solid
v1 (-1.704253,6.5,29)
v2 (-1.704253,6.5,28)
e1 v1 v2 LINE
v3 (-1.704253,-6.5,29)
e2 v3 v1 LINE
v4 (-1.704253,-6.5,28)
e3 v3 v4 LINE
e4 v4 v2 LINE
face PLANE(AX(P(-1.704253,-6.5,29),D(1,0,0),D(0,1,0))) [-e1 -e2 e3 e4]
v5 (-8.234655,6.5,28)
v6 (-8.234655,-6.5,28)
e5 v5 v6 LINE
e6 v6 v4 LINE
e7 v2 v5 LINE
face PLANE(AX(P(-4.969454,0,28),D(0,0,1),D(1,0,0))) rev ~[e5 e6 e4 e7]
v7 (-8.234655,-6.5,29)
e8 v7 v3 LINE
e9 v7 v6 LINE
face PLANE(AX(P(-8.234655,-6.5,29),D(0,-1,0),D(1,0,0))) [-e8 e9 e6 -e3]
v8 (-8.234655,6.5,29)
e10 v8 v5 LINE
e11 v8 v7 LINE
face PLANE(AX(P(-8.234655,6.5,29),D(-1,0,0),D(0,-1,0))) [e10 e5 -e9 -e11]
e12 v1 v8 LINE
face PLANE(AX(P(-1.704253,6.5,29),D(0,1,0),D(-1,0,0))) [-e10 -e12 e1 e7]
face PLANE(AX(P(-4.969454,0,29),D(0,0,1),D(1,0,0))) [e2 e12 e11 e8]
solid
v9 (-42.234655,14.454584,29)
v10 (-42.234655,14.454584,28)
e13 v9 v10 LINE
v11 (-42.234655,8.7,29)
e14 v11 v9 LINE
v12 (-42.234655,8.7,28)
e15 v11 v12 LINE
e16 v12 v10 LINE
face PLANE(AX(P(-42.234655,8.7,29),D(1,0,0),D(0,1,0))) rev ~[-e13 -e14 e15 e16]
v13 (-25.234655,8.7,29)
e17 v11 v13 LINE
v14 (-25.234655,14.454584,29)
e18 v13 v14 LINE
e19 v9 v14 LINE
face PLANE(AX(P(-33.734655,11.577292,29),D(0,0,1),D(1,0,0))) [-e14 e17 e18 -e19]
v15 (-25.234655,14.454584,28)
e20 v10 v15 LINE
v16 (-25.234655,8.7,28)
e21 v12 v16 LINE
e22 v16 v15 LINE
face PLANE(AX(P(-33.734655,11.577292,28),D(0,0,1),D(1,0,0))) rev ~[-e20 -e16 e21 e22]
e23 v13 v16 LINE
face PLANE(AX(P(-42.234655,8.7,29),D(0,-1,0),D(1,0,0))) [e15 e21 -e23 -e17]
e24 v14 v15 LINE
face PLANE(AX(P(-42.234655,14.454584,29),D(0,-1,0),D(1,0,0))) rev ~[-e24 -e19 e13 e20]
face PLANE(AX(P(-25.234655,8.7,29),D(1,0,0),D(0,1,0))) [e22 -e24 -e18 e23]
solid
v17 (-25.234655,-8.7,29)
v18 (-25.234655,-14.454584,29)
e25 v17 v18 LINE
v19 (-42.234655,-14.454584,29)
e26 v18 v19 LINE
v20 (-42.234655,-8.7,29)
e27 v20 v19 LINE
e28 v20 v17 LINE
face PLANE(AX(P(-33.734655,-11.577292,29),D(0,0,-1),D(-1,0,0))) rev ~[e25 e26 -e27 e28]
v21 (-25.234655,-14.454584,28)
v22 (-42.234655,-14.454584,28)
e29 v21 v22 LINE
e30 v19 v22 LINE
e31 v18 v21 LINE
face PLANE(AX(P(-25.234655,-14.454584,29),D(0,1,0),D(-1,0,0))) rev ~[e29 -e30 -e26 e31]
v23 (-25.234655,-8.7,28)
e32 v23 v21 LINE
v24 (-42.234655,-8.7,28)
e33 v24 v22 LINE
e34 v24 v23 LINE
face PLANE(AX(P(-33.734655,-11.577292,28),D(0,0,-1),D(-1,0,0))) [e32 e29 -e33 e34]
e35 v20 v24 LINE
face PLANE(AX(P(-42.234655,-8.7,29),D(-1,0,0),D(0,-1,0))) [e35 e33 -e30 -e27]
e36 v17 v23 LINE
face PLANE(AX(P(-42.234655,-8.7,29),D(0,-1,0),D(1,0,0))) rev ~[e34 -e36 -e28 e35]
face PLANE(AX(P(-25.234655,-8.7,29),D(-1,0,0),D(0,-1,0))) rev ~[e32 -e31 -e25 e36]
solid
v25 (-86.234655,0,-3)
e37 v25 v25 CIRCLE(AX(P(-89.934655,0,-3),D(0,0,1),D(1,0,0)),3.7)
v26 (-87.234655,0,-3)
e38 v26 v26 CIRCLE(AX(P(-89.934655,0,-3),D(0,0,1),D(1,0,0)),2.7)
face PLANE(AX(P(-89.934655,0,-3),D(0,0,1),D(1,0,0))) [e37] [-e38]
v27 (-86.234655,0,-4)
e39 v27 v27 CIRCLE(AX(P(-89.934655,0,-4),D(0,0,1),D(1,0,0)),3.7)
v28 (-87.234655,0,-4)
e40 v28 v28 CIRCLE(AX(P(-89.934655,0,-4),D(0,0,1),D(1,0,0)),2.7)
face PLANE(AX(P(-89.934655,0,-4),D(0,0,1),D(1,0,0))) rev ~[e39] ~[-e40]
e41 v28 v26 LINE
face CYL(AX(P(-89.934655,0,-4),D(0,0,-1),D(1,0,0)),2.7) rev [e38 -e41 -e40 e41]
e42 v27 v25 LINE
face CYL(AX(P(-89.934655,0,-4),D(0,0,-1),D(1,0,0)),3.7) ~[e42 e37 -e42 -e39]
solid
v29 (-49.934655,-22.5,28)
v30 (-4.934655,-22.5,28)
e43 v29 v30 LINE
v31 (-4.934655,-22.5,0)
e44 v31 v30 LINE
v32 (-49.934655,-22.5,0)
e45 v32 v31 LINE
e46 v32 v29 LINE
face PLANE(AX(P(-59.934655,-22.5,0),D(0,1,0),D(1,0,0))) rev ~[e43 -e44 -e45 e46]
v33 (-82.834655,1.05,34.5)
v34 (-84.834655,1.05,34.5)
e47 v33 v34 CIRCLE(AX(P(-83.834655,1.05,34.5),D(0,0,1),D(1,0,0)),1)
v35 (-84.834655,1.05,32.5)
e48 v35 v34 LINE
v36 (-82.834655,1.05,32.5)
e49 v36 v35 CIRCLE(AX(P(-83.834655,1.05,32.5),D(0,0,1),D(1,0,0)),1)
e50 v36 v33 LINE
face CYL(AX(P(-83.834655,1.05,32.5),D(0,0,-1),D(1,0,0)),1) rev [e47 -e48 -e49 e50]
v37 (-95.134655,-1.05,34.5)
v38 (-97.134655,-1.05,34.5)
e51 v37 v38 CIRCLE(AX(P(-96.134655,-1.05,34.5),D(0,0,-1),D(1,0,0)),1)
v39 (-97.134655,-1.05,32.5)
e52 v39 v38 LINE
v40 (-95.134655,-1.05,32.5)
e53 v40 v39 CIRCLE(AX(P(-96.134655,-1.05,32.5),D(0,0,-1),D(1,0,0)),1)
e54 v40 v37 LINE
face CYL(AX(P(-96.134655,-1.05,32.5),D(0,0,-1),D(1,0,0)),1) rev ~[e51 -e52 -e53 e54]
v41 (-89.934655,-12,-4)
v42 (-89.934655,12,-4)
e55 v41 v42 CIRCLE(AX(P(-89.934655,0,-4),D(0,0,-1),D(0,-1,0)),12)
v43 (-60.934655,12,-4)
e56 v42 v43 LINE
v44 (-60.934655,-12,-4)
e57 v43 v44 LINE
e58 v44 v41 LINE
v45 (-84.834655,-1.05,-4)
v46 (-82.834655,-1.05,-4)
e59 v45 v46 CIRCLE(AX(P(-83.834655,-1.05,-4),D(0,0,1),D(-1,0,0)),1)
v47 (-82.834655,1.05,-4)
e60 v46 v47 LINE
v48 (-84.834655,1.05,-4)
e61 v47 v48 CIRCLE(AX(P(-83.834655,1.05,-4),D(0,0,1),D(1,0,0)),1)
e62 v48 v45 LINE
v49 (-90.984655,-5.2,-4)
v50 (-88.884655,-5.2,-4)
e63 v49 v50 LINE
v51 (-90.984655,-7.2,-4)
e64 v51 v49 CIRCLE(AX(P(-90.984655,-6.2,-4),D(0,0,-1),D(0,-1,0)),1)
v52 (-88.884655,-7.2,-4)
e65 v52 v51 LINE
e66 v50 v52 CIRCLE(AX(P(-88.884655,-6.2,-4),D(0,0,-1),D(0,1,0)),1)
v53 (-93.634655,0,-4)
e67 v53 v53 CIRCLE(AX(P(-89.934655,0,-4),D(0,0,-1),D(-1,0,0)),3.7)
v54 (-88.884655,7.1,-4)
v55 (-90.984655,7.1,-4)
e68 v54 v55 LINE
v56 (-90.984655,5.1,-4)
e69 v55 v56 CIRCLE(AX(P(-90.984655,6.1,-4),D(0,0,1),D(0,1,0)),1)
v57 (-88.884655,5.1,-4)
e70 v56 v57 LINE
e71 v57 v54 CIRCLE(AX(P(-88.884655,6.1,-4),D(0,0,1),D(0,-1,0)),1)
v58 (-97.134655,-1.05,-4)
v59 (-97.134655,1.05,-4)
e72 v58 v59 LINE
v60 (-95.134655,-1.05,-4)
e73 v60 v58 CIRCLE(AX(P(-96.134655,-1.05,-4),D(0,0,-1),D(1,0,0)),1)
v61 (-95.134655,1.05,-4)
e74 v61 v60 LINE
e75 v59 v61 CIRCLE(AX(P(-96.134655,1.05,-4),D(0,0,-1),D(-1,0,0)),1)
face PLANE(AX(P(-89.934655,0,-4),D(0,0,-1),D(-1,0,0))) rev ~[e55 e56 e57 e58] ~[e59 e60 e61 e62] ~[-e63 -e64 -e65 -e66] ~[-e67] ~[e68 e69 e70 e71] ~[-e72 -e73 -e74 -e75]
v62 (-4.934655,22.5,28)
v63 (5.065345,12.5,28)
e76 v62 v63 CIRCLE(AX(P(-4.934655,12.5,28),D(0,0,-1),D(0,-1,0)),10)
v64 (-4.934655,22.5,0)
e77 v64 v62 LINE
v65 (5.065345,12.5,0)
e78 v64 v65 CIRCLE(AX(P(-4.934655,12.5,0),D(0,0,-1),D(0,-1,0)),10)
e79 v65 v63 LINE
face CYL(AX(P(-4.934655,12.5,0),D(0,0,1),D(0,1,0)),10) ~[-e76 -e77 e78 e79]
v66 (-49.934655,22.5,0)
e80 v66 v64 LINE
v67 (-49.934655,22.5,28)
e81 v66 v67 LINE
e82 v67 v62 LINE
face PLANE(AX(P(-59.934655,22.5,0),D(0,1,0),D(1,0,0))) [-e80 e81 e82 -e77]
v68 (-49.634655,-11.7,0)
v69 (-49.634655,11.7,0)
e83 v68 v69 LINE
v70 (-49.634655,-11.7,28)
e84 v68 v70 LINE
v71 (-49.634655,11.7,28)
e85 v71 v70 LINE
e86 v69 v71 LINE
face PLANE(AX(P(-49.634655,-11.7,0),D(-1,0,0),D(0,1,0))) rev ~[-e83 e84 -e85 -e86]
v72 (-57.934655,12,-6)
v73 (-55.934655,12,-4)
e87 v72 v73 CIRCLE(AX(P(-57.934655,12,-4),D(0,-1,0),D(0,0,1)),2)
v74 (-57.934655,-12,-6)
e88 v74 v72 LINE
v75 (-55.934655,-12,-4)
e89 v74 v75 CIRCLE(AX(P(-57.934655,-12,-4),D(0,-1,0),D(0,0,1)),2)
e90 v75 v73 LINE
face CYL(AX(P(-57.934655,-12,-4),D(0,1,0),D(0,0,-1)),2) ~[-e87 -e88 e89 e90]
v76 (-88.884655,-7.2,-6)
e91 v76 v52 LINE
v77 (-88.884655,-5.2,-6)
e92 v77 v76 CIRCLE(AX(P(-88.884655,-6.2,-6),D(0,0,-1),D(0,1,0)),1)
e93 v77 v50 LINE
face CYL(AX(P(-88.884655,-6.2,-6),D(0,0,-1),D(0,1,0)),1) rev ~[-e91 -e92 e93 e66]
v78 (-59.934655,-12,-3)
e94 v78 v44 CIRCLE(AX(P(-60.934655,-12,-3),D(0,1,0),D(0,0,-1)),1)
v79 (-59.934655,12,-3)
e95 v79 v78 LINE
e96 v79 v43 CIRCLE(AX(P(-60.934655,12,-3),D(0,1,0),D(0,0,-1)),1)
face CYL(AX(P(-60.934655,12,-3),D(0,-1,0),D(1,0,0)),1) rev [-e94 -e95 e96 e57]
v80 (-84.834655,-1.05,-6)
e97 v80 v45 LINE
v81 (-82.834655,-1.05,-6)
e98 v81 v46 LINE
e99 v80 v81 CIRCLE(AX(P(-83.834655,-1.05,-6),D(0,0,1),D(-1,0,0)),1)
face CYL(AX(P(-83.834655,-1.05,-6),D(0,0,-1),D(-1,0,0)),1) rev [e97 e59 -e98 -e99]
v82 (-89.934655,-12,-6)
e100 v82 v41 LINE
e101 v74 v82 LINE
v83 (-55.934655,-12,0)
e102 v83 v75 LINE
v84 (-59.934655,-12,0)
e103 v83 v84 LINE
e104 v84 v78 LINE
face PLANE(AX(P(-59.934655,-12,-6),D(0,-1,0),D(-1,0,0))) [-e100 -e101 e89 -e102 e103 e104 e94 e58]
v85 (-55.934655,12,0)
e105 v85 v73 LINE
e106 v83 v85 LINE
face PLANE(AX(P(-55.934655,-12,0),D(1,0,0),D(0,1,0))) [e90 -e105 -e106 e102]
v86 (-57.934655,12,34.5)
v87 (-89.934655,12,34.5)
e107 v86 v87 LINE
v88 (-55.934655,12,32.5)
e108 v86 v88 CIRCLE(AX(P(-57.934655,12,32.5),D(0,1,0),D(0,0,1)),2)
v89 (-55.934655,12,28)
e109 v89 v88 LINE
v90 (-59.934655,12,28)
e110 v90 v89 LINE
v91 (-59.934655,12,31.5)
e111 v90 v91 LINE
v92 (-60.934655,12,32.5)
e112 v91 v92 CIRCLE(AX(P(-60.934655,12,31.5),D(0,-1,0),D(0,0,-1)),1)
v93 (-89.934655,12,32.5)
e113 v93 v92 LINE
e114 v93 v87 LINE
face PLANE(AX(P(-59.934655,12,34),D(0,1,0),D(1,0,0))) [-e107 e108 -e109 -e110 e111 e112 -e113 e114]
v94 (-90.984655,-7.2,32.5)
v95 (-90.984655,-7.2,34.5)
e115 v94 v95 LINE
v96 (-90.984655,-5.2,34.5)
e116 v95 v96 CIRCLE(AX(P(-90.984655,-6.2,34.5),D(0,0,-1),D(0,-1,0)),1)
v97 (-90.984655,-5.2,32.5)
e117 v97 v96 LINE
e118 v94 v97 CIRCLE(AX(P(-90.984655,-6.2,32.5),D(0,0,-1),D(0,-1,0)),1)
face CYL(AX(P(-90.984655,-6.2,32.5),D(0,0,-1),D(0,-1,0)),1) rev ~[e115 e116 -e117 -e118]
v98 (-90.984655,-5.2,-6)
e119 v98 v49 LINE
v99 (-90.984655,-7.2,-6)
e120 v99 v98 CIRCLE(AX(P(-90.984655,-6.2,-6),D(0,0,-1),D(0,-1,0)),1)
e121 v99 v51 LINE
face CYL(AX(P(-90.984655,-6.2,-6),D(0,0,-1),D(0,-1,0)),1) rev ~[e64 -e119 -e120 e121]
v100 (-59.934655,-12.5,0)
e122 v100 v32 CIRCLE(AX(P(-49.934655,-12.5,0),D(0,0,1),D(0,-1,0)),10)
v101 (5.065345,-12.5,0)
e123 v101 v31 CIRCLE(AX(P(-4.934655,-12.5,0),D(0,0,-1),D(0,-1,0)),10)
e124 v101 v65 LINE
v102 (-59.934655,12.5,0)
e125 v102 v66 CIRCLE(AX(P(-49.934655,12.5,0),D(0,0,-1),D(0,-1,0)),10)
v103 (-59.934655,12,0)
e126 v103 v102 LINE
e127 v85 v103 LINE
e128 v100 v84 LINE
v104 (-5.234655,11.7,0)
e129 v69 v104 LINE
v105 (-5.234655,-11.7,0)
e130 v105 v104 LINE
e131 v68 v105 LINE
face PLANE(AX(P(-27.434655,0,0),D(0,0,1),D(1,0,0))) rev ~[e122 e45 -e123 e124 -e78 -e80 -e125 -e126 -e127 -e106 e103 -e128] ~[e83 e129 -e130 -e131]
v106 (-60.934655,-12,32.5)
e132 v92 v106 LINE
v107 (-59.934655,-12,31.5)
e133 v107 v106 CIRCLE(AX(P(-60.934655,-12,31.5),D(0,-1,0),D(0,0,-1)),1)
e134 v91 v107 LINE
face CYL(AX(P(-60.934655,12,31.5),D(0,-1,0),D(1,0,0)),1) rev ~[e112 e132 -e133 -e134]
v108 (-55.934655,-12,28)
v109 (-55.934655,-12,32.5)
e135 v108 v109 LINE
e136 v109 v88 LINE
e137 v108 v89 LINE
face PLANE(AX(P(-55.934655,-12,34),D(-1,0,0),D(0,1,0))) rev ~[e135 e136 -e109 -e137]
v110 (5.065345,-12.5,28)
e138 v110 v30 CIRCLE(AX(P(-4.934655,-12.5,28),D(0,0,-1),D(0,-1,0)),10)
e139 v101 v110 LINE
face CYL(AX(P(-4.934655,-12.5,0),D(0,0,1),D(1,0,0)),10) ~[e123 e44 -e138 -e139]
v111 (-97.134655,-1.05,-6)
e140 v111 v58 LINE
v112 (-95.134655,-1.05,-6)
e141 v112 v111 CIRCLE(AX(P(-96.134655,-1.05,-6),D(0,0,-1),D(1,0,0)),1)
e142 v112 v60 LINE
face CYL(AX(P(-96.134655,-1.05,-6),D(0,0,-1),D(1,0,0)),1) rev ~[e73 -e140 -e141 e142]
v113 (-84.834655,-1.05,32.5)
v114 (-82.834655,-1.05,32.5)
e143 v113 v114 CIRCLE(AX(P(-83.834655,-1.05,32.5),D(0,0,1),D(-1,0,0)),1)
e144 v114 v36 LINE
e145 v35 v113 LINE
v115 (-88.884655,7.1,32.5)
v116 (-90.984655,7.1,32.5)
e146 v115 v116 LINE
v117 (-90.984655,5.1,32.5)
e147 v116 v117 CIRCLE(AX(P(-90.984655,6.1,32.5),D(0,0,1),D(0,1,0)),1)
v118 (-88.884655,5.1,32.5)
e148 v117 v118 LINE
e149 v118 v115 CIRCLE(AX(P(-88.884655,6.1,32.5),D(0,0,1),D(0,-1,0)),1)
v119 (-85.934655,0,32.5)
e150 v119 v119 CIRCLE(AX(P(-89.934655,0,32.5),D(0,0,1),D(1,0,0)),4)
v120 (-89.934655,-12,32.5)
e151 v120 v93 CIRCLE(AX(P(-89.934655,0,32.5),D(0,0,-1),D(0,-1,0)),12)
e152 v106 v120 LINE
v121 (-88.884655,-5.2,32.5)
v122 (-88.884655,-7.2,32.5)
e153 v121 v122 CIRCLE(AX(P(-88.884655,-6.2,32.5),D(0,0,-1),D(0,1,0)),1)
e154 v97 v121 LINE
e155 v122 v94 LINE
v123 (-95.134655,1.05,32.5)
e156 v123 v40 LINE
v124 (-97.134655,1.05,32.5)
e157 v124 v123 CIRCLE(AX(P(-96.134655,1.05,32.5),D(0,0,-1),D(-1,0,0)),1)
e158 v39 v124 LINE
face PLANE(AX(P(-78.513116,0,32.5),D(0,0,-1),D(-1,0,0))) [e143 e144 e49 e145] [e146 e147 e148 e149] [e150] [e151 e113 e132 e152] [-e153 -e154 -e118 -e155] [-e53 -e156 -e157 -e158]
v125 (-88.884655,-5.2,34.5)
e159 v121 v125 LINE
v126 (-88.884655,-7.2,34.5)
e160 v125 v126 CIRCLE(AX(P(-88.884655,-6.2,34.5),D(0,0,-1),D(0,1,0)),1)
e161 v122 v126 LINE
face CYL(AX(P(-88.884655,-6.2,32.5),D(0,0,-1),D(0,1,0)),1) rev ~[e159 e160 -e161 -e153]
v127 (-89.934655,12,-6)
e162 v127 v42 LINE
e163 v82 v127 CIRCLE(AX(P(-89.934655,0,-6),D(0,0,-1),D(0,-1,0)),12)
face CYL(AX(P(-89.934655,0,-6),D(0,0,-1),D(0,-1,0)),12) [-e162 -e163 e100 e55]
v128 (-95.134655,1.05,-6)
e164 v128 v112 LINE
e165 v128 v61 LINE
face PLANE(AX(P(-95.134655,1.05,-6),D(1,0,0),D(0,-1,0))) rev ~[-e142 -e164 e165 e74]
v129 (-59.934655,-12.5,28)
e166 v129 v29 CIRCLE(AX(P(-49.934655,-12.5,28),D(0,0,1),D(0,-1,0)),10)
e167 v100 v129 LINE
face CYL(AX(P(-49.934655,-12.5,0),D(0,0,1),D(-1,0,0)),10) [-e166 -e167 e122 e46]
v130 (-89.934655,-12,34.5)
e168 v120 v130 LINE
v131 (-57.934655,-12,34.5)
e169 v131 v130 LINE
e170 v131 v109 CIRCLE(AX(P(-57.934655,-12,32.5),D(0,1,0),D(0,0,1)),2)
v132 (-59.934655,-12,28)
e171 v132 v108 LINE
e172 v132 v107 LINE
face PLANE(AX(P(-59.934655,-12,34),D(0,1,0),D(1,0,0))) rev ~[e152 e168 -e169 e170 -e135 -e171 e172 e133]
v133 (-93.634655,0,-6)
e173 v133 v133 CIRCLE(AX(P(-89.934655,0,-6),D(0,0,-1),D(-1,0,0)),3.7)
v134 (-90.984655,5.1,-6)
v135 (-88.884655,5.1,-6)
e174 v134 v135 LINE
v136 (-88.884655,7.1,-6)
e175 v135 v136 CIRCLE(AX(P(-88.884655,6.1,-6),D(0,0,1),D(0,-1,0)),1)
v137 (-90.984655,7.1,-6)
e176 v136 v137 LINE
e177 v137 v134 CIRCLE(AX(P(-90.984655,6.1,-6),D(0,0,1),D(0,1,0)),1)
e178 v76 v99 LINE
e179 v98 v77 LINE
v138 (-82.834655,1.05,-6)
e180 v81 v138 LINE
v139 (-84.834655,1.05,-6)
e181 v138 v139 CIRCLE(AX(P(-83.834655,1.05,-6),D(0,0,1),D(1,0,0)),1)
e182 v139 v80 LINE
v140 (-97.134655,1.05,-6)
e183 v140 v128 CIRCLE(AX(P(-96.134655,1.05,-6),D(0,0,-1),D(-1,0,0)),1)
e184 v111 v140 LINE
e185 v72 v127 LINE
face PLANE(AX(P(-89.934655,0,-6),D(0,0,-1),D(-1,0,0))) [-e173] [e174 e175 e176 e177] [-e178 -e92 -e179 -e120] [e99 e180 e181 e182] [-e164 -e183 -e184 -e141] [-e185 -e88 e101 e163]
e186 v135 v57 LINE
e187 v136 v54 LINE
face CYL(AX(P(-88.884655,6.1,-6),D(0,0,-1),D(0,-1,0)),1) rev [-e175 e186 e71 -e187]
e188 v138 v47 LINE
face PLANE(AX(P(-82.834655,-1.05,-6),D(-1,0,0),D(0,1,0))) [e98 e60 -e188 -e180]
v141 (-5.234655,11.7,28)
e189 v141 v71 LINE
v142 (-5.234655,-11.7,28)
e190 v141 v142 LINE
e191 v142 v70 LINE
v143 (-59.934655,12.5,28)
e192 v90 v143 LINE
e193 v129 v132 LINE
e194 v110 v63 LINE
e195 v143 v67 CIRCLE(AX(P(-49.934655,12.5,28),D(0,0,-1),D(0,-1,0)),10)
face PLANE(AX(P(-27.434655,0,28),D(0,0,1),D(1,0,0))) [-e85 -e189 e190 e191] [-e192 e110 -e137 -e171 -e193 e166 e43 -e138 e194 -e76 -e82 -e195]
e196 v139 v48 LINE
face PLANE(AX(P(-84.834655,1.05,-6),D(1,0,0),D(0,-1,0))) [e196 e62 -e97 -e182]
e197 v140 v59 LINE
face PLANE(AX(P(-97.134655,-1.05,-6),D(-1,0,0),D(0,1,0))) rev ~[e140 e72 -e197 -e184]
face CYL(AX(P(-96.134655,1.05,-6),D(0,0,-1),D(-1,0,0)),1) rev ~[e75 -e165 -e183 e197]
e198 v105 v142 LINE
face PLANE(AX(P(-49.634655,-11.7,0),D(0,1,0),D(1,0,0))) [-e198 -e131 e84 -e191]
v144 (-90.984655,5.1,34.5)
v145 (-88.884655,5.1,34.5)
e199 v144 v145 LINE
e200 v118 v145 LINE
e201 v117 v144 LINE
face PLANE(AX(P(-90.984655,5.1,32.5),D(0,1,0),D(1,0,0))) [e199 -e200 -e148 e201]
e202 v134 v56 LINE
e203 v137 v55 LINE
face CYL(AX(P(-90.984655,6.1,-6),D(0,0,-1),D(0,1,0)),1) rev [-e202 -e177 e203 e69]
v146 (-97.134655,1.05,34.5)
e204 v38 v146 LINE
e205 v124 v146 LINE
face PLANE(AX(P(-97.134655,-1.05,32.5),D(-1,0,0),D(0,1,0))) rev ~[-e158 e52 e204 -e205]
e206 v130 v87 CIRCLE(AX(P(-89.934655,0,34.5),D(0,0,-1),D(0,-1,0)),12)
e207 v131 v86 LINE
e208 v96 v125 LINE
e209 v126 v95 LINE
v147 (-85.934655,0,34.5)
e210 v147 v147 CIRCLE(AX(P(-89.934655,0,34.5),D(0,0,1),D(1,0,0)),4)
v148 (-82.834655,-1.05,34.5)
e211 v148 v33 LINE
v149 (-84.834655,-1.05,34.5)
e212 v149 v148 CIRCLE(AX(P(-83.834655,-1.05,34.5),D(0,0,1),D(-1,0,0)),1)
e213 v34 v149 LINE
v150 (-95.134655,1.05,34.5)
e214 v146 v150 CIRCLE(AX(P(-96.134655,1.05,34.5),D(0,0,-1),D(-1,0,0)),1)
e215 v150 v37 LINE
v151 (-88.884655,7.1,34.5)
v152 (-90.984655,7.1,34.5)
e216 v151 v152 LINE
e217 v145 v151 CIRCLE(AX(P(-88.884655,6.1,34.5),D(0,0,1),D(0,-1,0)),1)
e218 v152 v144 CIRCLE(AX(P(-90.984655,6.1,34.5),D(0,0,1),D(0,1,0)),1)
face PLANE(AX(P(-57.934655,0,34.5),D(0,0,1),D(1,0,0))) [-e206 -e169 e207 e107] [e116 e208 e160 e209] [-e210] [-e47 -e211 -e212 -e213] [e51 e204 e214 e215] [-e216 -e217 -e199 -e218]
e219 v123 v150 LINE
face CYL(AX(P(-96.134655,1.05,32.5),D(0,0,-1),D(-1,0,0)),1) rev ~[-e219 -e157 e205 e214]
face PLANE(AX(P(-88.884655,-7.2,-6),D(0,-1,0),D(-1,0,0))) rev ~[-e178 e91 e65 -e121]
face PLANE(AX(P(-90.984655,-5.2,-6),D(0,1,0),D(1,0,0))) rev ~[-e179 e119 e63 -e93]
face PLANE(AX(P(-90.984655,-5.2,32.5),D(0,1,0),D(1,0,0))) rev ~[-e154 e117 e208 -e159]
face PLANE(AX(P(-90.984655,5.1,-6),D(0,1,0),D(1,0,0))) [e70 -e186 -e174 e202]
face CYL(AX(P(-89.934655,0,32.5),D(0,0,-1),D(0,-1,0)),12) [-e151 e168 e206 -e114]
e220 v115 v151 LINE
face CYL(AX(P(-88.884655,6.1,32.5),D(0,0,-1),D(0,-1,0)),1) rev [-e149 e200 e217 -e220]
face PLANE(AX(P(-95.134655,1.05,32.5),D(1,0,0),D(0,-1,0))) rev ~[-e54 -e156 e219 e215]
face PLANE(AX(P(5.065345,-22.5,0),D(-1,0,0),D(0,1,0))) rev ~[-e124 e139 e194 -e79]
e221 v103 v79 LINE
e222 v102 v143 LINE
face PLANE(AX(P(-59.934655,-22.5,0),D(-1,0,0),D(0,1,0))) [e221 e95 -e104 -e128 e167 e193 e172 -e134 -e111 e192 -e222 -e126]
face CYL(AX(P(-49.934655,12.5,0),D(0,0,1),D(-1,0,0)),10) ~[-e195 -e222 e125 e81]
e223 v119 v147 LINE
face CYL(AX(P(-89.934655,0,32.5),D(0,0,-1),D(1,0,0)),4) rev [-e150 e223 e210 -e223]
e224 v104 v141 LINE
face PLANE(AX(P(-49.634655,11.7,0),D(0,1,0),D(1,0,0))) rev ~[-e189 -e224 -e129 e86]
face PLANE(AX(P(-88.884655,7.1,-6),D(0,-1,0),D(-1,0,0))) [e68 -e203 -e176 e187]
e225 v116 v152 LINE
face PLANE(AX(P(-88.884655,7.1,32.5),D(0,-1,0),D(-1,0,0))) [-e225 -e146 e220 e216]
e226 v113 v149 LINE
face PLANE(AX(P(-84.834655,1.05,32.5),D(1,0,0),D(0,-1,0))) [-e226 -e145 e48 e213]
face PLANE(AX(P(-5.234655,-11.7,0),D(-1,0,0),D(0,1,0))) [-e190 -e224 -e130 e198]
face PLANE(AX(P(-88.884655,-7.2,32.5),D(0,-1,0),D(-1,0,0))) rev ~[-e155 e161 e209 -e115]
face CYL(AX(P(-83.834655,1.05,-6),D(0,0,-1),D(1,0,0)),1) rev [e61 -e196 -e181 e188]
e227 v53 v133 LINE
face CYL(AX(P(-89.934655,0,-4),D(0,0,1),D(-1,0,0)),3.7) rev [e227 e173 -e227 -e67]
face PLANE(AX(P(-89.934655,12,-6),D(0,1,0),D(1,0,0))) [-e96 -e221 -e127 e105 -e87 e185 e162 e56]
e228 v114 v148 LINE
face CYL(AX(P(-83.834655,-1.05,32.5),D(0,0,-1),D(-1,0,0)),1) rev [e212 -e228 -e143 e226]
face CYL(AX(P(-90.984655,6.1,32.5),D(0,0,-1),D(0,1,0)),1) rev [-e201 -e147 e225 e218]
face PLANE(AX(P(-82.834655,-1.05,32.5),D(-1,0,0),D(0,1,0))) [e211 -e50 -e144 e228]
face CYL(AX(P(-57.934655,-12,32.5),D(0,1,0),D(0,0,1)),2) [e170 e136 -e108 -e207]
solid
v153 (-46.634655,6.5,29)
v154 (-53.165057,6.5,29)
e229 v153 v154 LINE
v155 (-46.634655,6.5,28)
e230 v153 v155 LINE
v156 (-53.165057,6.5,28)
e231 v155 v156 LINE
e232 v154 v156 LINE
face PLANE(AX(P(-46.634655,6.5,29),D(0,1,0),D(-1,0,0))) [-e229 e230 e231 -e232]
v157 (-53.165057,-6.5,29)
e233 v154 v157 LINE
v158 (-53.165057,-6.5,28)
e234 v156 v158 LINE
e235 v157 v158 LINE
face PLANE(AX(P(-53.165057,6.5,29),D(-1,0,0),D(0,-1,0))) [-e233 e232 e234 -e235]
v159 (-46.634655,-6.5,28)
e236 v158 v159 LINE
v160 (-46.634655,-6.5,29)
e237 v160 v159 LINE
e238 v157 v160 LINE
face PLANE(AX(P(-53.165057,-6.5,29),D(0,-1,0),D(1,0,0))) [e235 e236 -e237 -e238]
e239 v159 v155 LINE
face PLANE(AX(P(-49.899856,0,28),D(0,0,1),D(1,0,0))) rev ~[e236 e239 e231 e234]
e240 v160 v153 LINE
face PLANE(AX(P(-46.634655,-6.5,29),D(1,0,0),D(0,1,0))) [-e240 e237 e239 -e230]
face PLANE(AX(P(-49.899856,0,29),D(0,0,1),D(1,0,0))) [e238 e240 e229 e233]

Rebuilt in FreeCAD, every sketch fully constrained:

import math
import FreeCAD as App
import Part
import Sketcher
from FreeCAD import Vector


def edges_at(feature, points):
    """Names of the edges that pass closest to the given points."""
    edges = feature.Shape.Edges
    near = lambda p: min(range(len(edges)), key=lambda i: edges[i].distToShape(Part.Vertex(*p))[0])
    return sorted({f"Edge{near(p) + 1}" for p in points})

doc = App.newDocument("Part")
body = doc.addObject("PartDesign::Body", "Body")

sketch1 = doc.addObject("Sketcher::SketchObject", "Sketch")
body.addObject(sketch1)
sketch1.AttachmentSupport = (doc.XY_Plane, [""])
sketch1.MapMode = "FlatFace"
sketch1.addGeometry([
    Part.LineSegment(Vector(-60, 22, 0), Vector(-60, -22, 0)),
    Part.LineSegment(Vector(-60, -22, 0), Vector(5, -22, 0)),
    Part.LineSegment(Vector(5, -22, 0), Vector(5, 22, 0)),
    Part.LineSegment(Vector(5, 22, 0), Vector(-60, 22, 0)),
], False)
sketch1.addConstraint([
    Sketcher.Constraint("Coincident", 0, 2, 1, 1),
    Sketcher.Constraint("Coincident", 1, 2, 2, 1),
    Sketcher.Constraint("Coincident", 2, 2, 3, 1),
    Sketcher.Constraint("Coincident", 3, 2, 0, 1),
    Sketcher.Constraint("Vertical", 0),
    Sketcher.Constraint("Horizontal", 1),
    Sketcher.Constraint("Vertical", 2),
    Sketcher.Constraint("Horizontal", 3),
    Sketcher.Constraint("DistanceX", 1, 1, 1, 2, 65.0),
    Sketcher.Constraint("DistanceY", 0, 2, 0, 1, 45.0),
    Sketcher.Constraint("DistanceY", 0, 2, -1, 1, 22.5),
    Sketcher.Constraint("DistanceX", 0, 2, -1, 1, 59.934655),
])
pad1 = doc.addObject("PartDesign::Pad", "Pad")
body.addObject(pad1)
pad1.Profile = sketch1
pad1.Length = 28

sketch2 = doc.addObject("Sketcher::SketchObject", "Sketch001")
body.addObject(sketch2)
sketch2.AttachmentSupport = (doc.XY_Plane, [""])
sketch2.MapMode = "FlatFace"
sketch2.addGeometry([
    Part.LineSegment(Vector(-50, 12, 0), Vector(-50, -12, 0)),
    Part.LineSegment(Vector(-50, -12, 0), Vector(-5, -12, 0)),
    Part.LineSegment(Vector(-5, -12, 0), Vector(-5, 12, 0)),
    Part.LineSegment(Vector(-5, 12, 0), Vector(-50, 12, 0)),
], False)
sketch2.addConstraint([
    Sketcher.Constraint("Coincident", 0, 2, 1, 1),
    Sketcher.Constraint("Coincident", 1, 2, 2, 1),
    Sketcher.Constraint("Coincident", 2, 2, 3, 1),
    Sketcher.Constraint("Coincident", 3, 2, 0, 1),
    Sketcher.Constraint("Vertical", 0),
    Sketcher.Constraint("Horizontal", 1),
    Sketcher.Constraint("Vertical", 2),
    Sketcher.Constraint("Horizontal", 3),
    Sketcher.Constraint("DistanceX", 1, 1, 1, 2, 44.4),
    Sketcher.Constraint("DistanceY", 0, 2, 0, 1, 23.4),
    Sketcher.Constraint("DistanceY", 0, 2, -1, 1, 11.7),
    Sketcher.Constraint("DistanceX", 0, 2, -1, 1, 49.634655),
])
pocket1 = doc.addObject("PartDesign::Pocket", "Pocket")
body.addObject(pocket1)
pocket1.Profile = sketch2
pocket1.Length = 39
pocket1.Reversed = True

sketch3 = doc.addObject("Sketcher::SketchObject", "Sketch002")
body.addObject(sketch3)
sketch3.AttachmentSupport = (doc.XY_Plane, [""])
sketch3.MapMode = "FlatFace"
sketch3.AttachmentOffset = App.Placement(Vector(0, 0, 28), App.Rotation())
sketch3.addGeometry([
    Part.LineSegment(Vector(-59.9, 12, 0), Vector(-59.9, -12, 0)),
    Part.LineSegment(Vector(-59.9, -12, 0), Vector(-55.9, -12, 0)),
    Part.LineSegment(Vector(-55.9, -12, 0), Vector(-55.9, 12, 0)),
    Part.LineSegment(Vector(-55.9, 12, 0), Vector(-59.9, 12, 0)),
], False)
sketch3.addConstraint([
    Sketcher.Constraint("Coincident", 0, 2, 1, 1),
    Sketcher.Constraint("Coincident", 1, 2, 2, 1),
    Sketcher.Constraint("Coincident", 2, 2, 3, 1),
    Sketcher.Constraint("Coincident", 3, 2, 0, 1),
    Sketcher.Constraint("Vertical", 0),
    Sketcher.Constraint("Horizontal", 1),
    Sketcher.Constraint("Vertical", 2),
    Sketcher.Constraint("Horizontal", 3),
    Sketcher.Constraint("DistanceX", 1, 1, 1, 2, 4.0),
    Sketcher.Constraint("DistanceY", 0, 2, 0, 1, 24.0),
    Sketcher.Constraint("DistanceY", 0, 2, -1, 1, 12.0),
    Sketcher.Constraint("DistanceX", 0, 2, -1, 1, 59.934655),
])
pad2 = doc.addObject("PartDesign::Pad", "Pad001")
body.addObject(pad2)
pad2.Profile = sketch3
pad2.Length = 6

sketch4 = doc.addObject("Sketcher::SketchObject", "Sketch003")
body.addObject(sketch4)
sketch4.AttachmentSupport = (doc.XY_Plane, [""])
sketch4.MapMode = "FlatFace"
sketch4.AttachmentOffset = App.Placement(Vector(0, 0, 32.5), App.Rotation())
sketch4.addGeometry([
    Part.LineSegment(Vector(-59.9, -12, 0), Vector(-59.9, 12, 0)),
    Part.LineSegment(Vector(-59.9, 12, 0), Vector(-89.9, 12, 0)),
    Part.ArcOfCircle(Part.Circle(Vector(-89.9, 0, 0), Vector(0, 0, 1), 12), math.radians(90), math.radians(270)),
    Part.LineSegment(Vector(-89.9, -12, 0), Vector(-59.9, -12, 0)),
    Part.LineSegment(Vector(-91, -5.2, 0), Vector(-88.9, -5.2, 0)),
    Part.ArcOfCircle(Part.Circle(Vector(-88.9, -6.2, 0), Vector(0, 0, 1), 1), math.radians(-90), math.radians(90)),
    Part.LineSegment(Vector(-88.9, -7.2, 0), Vector(-91, -7.2, 0)),
    Part.ArcOfCircle(Part.Circle(Vector(-91, -6.2, 0), Vector(0, 0, 1), 1), math.radians(90), math.radians(270)),
    Part.ArcOfCircle(Part.Circle(Vector(-83.8, 1.1, 0), Vector(0, 0, 1), 1), math.radians(0), math.radians(180)),
    Part.LineSegment(Vector(-82.8, 1.1, 0), Vector(-82.8, -1.1, 0)),
    Part.ArcOfCircle(Part.Circle(Vector(-83.8, -1.1, 0), Vector(0, 0, 1), 1), math.radians(180), math.radians(360)),
    Part.LineSegment(Vector(-84.8, -1.1, 0), Vector(-84.8, 1.1, 0)),
    Part.Circle(Vector(-89.9, 0, 0), Vector(0, 0, 1), 4),
    Part.ArcOfCircle(Part.Circle(Vector(-91, 6.1, 0), Vector(0, 0, 1), 1), math.radians(90), math.radians(270)),
    Part.LineSegment(Vector(-91, 7.1, 0), Vector(-88.9, 7.1, 0)),
    Part.ArcOfCircle(Part.Circle(Vector(-88.9, 6.1, 0), Vector(0, 0, 1), 1), math.radians(-90), math.radians(90)),
    Part.LineSegment(Vector(-88.9, 5.1, 0), Vector(-91, 5.1, 0)),
    Part.LineSegment(Vector(-95.1, 1.1, 0), Vector(-95.1, -1.1, 0)),
    Part.ArcOfCircle(Part.Circle(Vector(-96.1, -1.1, 0), Vector(0, 0, 1), 1), math.radians(180), math.radians(360)),
    Part.LineSegment(Vector(-97.1, -1.1, 0), Vector(-97.1, 1.1, 0)),
    Part.ArcOfCircle(Part.Circle(Vector(-96.1, 1.1, 0), Vector(0, 0, 1), 1), math.radians(0), math.radians(180)),
], False)
sketch4.addConstraint([
    Sketcher.Constraint("Coincident", 0, 2, 1, 1),
    Sketcher.Constraint("Tangent", 1, 2, 2, 1),
    Sketcher.Constraint("Tangent", 2, 2, 3, 1),
    Sketcher.Constraint("Coincident", 3, 2, 0, 1),
    Sketcher.Constraint("Tangent", 4, 2, 5, 2),
    Sketcher.Constraint("Tangent", 5, 1, 6, 1),
    Sketcher.Constraint("Tangent", 6, 2, 7, 2),
    Sketcher.Constraint("Tangent", 7, 1, 4, 1),
    Sketcher.Constraint("Tangent", 8, 1, 9, 1),
    Sketcher.Constraint("Tangent", 9, 2, 10, 2),
    Sketcher.Constraint("Tangent", 10, 1, 11, 1),
    Sketcher.Constraint("Tangent", 11, 2, 8, 2),
    Sketcher.Constraint("Tangent", 13, 1, 14, 1),
    Sketcher.Constraint("Tangent", 14, 2, 15, 2),
    Sketcher.Constraint("Tangent", 15, 1, 16, 1),
    Sketcher.Constraint("Tangent", 16, 2, 13, 2),
    Sketcher.Constraint("Tangent", 17, 2, 18, 2),
    Sketcher.Constraint("Tangent", 18, 1, 19, 1),
    Sketcher.Constraint("Tangent", 19, 2, 20, 2),
    Sketcher.Constraint("Tangent", 20, 1, 17, 1),
    Sketcher.Constraint("Vertical", 0),
    Sketcher.Constraint("Horizontal", 1),
    Sketcher.Constraint("Horizontal", 3),
    Sketcher.Constraint("Horizontal", 4),
    Sketcher.Constraint("Horizontal", 6),
    Sketcher.Constraint("Vertical", 9),
    Sketcher.Constraint("Vertical", 11),
    Sketcher.Constraint("Horizontal", 14),
    Sketcher.Constraint("Horizontal", 16),
    Sketcher.Constraint("Vertical", 17),
    Sketcher.Constraint("Vertical", 19),
    Sketcher.Constraint("Coincident", 12, 3, 2, 3),
    Sketcher.Constraint("Equal", 7, 8),
    Sketcher.Constraint("Equal", 10, 13),
    Sketcher.Constraint("Equal", 15, 18),
    Sketcher.Constraint("PointOnObject", 2, 3, -1),
    Sketcher.Constraint("Horizontal", 10, 3, 18, 3),
    Sketcher.Constraint("Horizontal", 8, 3, 20, 3),
    Sketcher.Constraint("Vertical", 7, 3, 13, 3),
    Sketcher.Constraint("Vertical", 5, 3, 15, 3),
    Sketcher.Constraint("Equal", 16, 9),
    Sketcher.Constraint("Diameter", 12, 8.0),
    Sketcher.Constraint("Radius", 2, 12.0),
    Sketcher.Constraint("Radius", 5, 1.0),
    Sketcher.Constraint("DistanceX", 1, 2, 1, 1, 30.0),
    Sketcher.Constraint("DistanceX", 4, 1, 4, 2, 2.1),
    Sketcher.Constraint("DistanceY", 5, 3, -1, 1, 6.2),
    Sketcher.Constraint("DistanceY", -1, 1, 13, 3, 6.1),
    Sketcher.Constraint("DistanceX", 2, 3, 8, 3, 6.1),
    Sketcher.Constraint("DistanceX", 18, 3, 2, 3, 6.2),
    Sketcher.Constraint("DistanceY", -1, 1, 8, 3, 1.05),
    Sketcher.Constraint("DistanceX", 2, 3, 5, 3, 1.05),
    Sketcher.Constraint("DistanceX", 2, 3, -1, 1, 89.934655),
])
pad3 = doc.addObject("PartDesign::Pad", "Pad002")
body.addObject(pad3)
pad3.Profile = sketch4
pad3.Length = 2

sketch5 = doc.addObject("Sketcher::SketchObject", "Sketch004")
body.addObject(sketch5)
sketch5.AttachmentSupport = (doc.XY_Plane, [""])
sketch5.MapMode = "FlatFace"
sketch5.addGeometry([
    Part.LineSegment(Vector(-55.9, 12, 0), Vector(-55.9, -12, 0)),
    Part.LineSegment(Vector(-55.9, -12, 0), Vector(-59.9, -12, 0)),
    Part.LineSegment(Vector(-59.9, -12, 0), Vector(-59.9, 12, 0)),
    Part.LineSegment(Vector(-59.9, 12, 0), Vector(-55.9, 12, 0)),
], False)
sketch5.addConstraint([
    Sketcher.Constraint("Coincident", 0, 2, 1, 1),
    Sketcher.Constraint("Coincident", 1, 2, 2, 1),
    Sketcher.Constraint("Coincident", 2, 2, 3, 1),
    Sketcher.Constraint("Coincident", 3, 2, 0, 1),
    Sketcher.Constraint("Vertical", 0),
    Sketcher.Constraint("Horizontal", 1),
    Sketcher.Constraint("Vertical", 2),
    Sketcher.Constraint("Horizontal", 3),
    Sketcher.Constraint("DistanceX", 1, 2, 1, 1, 4.0),
    Sketcher.Constraint("DistanceY", 0, 2, 0, 1, 24.0),
    Sketcher.Constraint("DistanceY", 0, 2, -1, 1, 12.0),
    Sketcher.Constraint("DistanceX", 0, 2, -1, 1, 55.934655),
])
pad4 = doc.addObject("PartDesign::Pad", "Pad003")
body.addObject(pad4)
pad4.Profile = sketch5
pad4.Length = 6
pad4.Reversed = True
doc.recompute()

fillet = doc.addObject("PartDesign::Fillet", "Fillet")
body.addObject(fillet)
fillet.Base = (pad4, edges_at(pad4, [(-59.935, -22.5, 14)]))
fillet.Radius = 10
doc.recompute()

fillet2 = doc.addObject("PartDesign::Fillet", "Fillet001")
body.addObject(fillet2)
fillet2.Base = (fillet, edges_at(fillet, [(-59.935, 22.5, 14)]))
fillet2.Radius = 10
doc.recompute()

fillet3 = doc.addObject("PartDesign::Fillet", "Fillet002")
body.addObject(fillet3)
fillet3.Base = (fillet2, edges_at(fillet2, [(5.065, 22.5, 14)]))
fillet3.Radius = 10
doc.recompute()

fillet4 = doc.addObject("PartDesign::Fillet", "Fillet003")
body.addObject(fillet4)
fillet4.Base = (fillet3, edges_at(fillet3, [(5.065, -22.5, 14)]))
fillet4.Radius = 10
doc.recompute()

linearpattern = doc.addObject("PartDesign::LinearPattern", "LinearPattern")
body.addObject(linearpattern)
linearpattern.Originals = [pad3]
linearpattern.Direction = (doc.Z_Axis, [""])
linearpattern.Mode = "offset"
linearpattern.Offset = 38.5
linearpattern.Occurrences = 2
linearpattern.Reversed = True
body.Tip = linearpattern
doc.recompute()

fillet5 = doc.addObject("PartDesign::Fillet", "Fillet004")
body.addObject(fillet5)
fillet5.Base = (linearpattern, edges_at(linearpattern, [(-55.935, 0, -6)]))
fillet5.Radius = 2

sketch6 = doc.addObject("Sketcher::SketchObject", "Sketch005")
body.addObject(sketch6)
sketch6.AttachmentSupport = (doc.XY_Plane, [""])
sketch6.MapMode = "FlatFace"
sketch6.AttachmentOffset = App.Placement(Vector(0, 0, -4), App.Rotation())
sketch6.addGeometry([
    Part.Circle(Vector(-89.9, 0, 0), Vector(0, 0, 1), 4),
    Part.Circle(Vector(-89.9, 0, 0), Vector(0, 0, 1), 3.7),
], False)
sketch6.addConstraint([
    Sketcher.Constraint("Coincident", 1, 3, 0, 3),
    Sketcher.Constraint("PointOnObject", 0, 3, -1),
    Sketcher.Constraint("Diameter", 0, 8.0),
    Sketcher.Constraint("Diameter", 1, 7.4),
    Sketcher.Constraint("DistanceX", 0, 3, -1, 1, 89.934655),
])
pad5 = doc.addObject("PartDesign::Pad", "Pad004")
body.addObject(pad5)
pad5.Profile = sketch6
pad5.Length = 2
pad5.Reversed = True

sketch7 = doc.addObject("Sketcher::SketchObject", "Sketch006")
body.addObject(sketch7)
sketch7.AttachmentSupport = (doc.XY_Plane, [""])
sketch7.MapMode = "FlatFace"
sketch7.AttachmentOffset = App.Placement(Vector(0, 0, 34), App.Rotation())
sketch7.addGeometry([
    Part.LineSegment(Vector(-59.9, 12, 0), Vector(-59.9, -12, 0)),
    Part.LineSegment(Vector(-59.9, -12, 0), Vector(-55.9, -12, 0)),
    Part.LineSegment(Vector(-55.9, -12, 0), Vector(-55.9, 12, 0)),
    Part.LineSegment(Vector(-55.9, 12, 0), Vector(-59.9, 12, 0)),
], False)
sketch7.addConstraint([
    Sketcher.Constraint("Coincident", 0, 2, 1, 1),
    Sketcher.Constraint("Coincident", 1, 2, 2, 1),
    Sketcher.Constraint("Coincident", 2, 2, 3, 1),
    Sketcher.Constraint("Coincident", 3, 2, 0, 1),
    Sketcher.Constraint("Vertical", 0),
    Sketcher.Constraint("Horizontal", 1),
    Sketcher.Constraint("Vertical", 2),
    Sketcher.Constraint("Horizontal", 3),
    Sketcher.Constraint("DistanceX", 1, 1, 1, 2, 4.0),
    Sketcher.Constraint("DistanceY", 0, 2, 0, 1, 24.0),
    Sketcher.Constraint("DistanceY", 0, 2, -1, 1, 12.0),
    Sketcher.Constraint("DistanceX", 0, 2, -1, 1, 59.934655),
])
pad6 = doc.addObject("PartDesign::Pad", "Pad005")
body.addObject(pad6)
pad6.Profile = sketch7
pad6.Length = 0.5
doc.recompute()

fillet6 = doc.addObject("PartDesign::Fillet", "Fillet005")
body.addObject(fillet6)
fillet6.Base = (pad6, edges_at(pad6, [(-55.935, 0, 34.5)]))
fillet6.Radius = 2
doc.recompute()

fillet7 = doc.addObject("PartDesign::Fillet", "Fillet006")
body.addObject(fillet7)
fillet7.Base = (fillet6, edges_at(fillet6, [(-59.935, 0, 32.5)]))
fillet7.Radius = 1
doc.recompute()

fillet8 = doc.addObject("PartDesign::Fillet", "Fillet007")
body.addObject(fillet8)
fillet8.Base = (fillet7, edges_at(fillet7, [(-59.935, 0, -4)]))
fillet8.Radius = 1
body2 = doc.addObject("PartDesign::Body", "Body001")

sketch8 = doc.addObject("Sketcher::SketchObject", "Sketch007")
body2.addObject(sketch8)
sketch8.AttachmentSupport = (doc.getObject("XY_Plane001"), [""])
sketch8.MapMode = "FlatFace"
sketch8.AttachmentOffset = App.Placement(Vector(0, 0, -4), App.Rotation())
sketch8.addGeometry([
    Part.Circle(Vector(-89.9, 0, 0), Vector(0, 0, 1), 3.7),
    Part.Circle(Vector(-89.9, 0, 0), Vector(0, 0, 1), 2.7),
], False)
sketch8.addConstraint([
    Sketcher.Constraint("Coincident", 1, 3, 0, 3),
    Sketcher.Constraint("PointOnObject", 0, 3, -1),
    Sketcher.Constraint("Diameter", 0, 7.4),
    Sketcher.Constraint("Diameter", 1, 5.4),
    Sketcher.Constraint("DistanceX", 0, 3, -1, 1, 89.934655),
])
pad7 = doc.addObject("PartDesign::Pad", "Pad006")
body2.addObject(pad7)
pad7.Profile = sketch8
pad7.Length = 1
body3 = doc.addObject("PartDesign::Body", "Body002")

sketch9 = doc.addObject("Sketcher::SketchObject", "Sketch008")
body3.addObject(sketch9)
sketch9.AttachmentSupport = (doc.getObject("XY_Plane002"), [""])
sketch9.MapMode = "FlatFace"
sketch9.AttachmentOffset = App.Placement(Vector(0, 0, 29), App.Rotation())
sketch9.addGeometry([
    Part.LineSegment(Vector(-53, 6, 0), Vector(-53, -6, 0)),
    Part.LineSegment(Vector(-53, -6, 0), Vector(-47, -6, 0)),
    Part.LineSegment(Vector(-47, -6, 0), Vector(-47, 6, 0)),
    Part.LineSegment(Vector(-47, 6, 0), Vector(-53, 6, 0)),
], False)
sketch9.addConstraint([
    Sketcher.Constraint("Coincident", 0, 2, 1, 1),
    Sketcher.Constraint("Coincident", 1, 2, 2, 1),
    Sketcher.Constraint("Coincident", 2, 2, 3, 1),
    Sketcher.Constraint("Coincident", 3, 2, 0, 1),
    Sketcher.Constraint("Vertical", 0),
    Sketcher.Constraint("Horizontal", 1),
    Sketcher.Constraint("Vertical", 2),
    Sketcher.Constraint("Horizontal", 3),
    Sketcher.Constraint("DistanceY", 0, 2, 0, 1, 13.0),
    Sketcher.Constraint("DistanceY", 0, 2, -1, 1, 6.5),
    Sketcher.Constraint("DistanceX", 1, 1, 1, 2, 6.530402),
    Sketcher.Constraint("DistanceX", 0, 2, -1, 1, 53.165057),
])
pad8 = doc.addObject("PartDesign::Pad", "Pad007")
body3.addObject(pad8)
pad8.Profile = sketch9
pad8.Length = 1
pad8.Reversed = True
body4 = doc.addObject("PartDesign::Body", "Body003")

sketch10 = doc.addObject("Sketcher::SketchObject", "Sketch009")
body4.addObject(sketch10)
sketch10.AttachmentSupport = (doc.getObject("XY_Plane003"), [""])
sketch10.MapMode = "FlatFace"
sketch10.AttachmentOffset = App.Placement(Vector(0, 0, 29), App.Rotation())
sketch10.addGeometry([
    Part.LineSegment(Vector(-42, -9, 0), Vector(-42, -14, 0)),
    Part.LineSegment(Vector(-42, -14, 0), Vector(-25, -14, 0)),
    Part.LineSegment(Vector(-25, -14, 0), Vector(-25, -9, 0)),
    Part.LineSegment(Vector(-25, -9, 0), Vector(-42, -9, 0)),
], False)
sketch10.addConstraint([
    Sketcher.Constraint("Coincident", 0, 2, 1, 1),
    Sketcher.Constraint("Coincident", 1, 2, 2, 1),
    Sketcher.Constraint("Coincident", 2, 2, 3, 1),
    Sketcher.Constraint("Coincident", 3, 2, 0, 1),
    Sketcher.Constraint("Vertical", 0),
    Sketcher.Constraint("Horizontal", 1),
    Sketcher.Constraint("Vertical", 2),
    Sketcher.Constraint("Horizontal", 3),
    Sketcher.Constraint("DistanceX", 1, 1, 1, 2, 17.0),
    Sketcher.Constraint("DistanceY", 2, 2, -1, 1, 8.7),
    Sketcher.Constraint("DistanceY", 0, 2, 0, 1, 5.754584),
    Sketcher.Constraint("DistanceX", 0, 2, -1, 1, 42.234655),
])
pad9 = doc.addObject("PartDesign::Pad", "Pad008")
body4.addObject(pad9)
pad9.Profile = sketch10
pad9.Length = 1
pad9.Reversed = True
body5 = doc.addObject("PartDesign::Body", "Body004")

sketch11 = doc.addObject("Sketcher::SketchObject", "Sketch010")
body5.addObject(sketch11)
sketch11.AttachmentSupport = (doc.getObject("XY_Plane004"), [""])
sketch11.MapMode = "FlatFace"
sketch11.AttachmentOffset = App.Placement(Vector(0, 0, 29), App.Rotation())
sketch11.addGeometry([
    Part.LineSegment(Vector(-8, 6, 0), Vector(-8, -6, 0)),
    Part.LineSegment(Vector(-8, -6, 0), Vector(-2, -6, 0)),
    Part.LineSegment(Vector(-2, -6, 0), Vector(-2, 6, 0)),
    Part.LineSegment(Vector(-2, 6, 0), Vector(-8, 6, 0)),
], False)
sketch11.addConstraint([
    Sketcher.Constraint("Coincident", 0, 2, 1, 1),
    Sketcher.Constraint("Coincident", 1, 2, 2, 1),
    Sketcher.Constraint("Coincident", 2, 2, 3, 1),
    Sketcher.Constraint("Coincident", 3, 2, 0, 1),
    Sketcher.Constraint("Vertical", 0),
    Sketcher.Constraint("Horizontal", 1),
    Sketcher.Constraint("Vertical", 2),
    Sketcher.Constraint("Horizontal", 3),
    Sketcher.Constraint("DistanceY", 0, 2, 0, 1, 13.0),
    Sketcher.Constraint("DistanceY", 0, 2, -1, 1, 6.5),
    Sketcher.Constraint("DistanceX", 1, 1, 1, 2, 6.530402),
    Sketcher.Constraint("DistanceX", 0, 2, -1, 1, 8.234655),
])
pad10 = doc.addObject("PartDesign::Pad", "Pad009")
body5.addObject(pad10)
pad10.Profile = sketch11
pad10.Length = 1
pad10.Reversed = True
body6 = doc.addObject("PartDesign::Body", "Body005")

sketch12 = doc.addObject("Sketcher::SketchObject", "Sketch011")
body6.addObject(sketch12)
sketch12.AttachmentSupport = (doc.getObject("XY_Plane005"), [""])
sketch12.MapMode = "FlatFace"
sketch12.AttachmentOffset = App.Placement(Vector(0, 0, 29), App.Rotation())
sketch12.addGeometry([
    Part.LineSegment(Vector(-42, 14, 0), Vector(-42, 9, 0)),
    Part.LineSegment(Vector(-42, 9, 0), Vector(-25, 9, 0)),
    Part.LineSegment(Vector(-25, 9, 0), Vector(-25, 14, 0)),
    Part.LineSegment(Vector(-25, 14, 0), Vector(-42, 14, 0)),
], False)
sketch12.addConstraint([
    Sketcher.Constraint("Coincident", 0, 2, 1, 1),
    Sketcher.Constraint("Coincident", 1, 2, 2, 1),
    Sketcher.Constraint("Coincident", 2, 2, 3, 1),
    Sketcher.Constraint("Coincident", 3, 2, 0, 1),
    Sketcher.Constraint("Vertical", 0),
    Sketcher.Constraint("Horizontal", 1),
    Sketcher.Constraint("Vertical", 2),
    Sketcher.Constraint("Horizontal", 3),
    Sketcher.Constraint("DistanceX", 1, 1, 1, 2, 17.0),
    Sketcher.Constraint("DistanceY", -1, 1, 0, 2, 8.7),
    Sketcher.Constraint("DistanceY", 0, 2, 0, 1, 5.754584),
    Sketcher.Constraint("DistanceX", 0, 2, -1, 1, 42.234655),
])
pad11 = doc.addObject("PartDesign::Pad", "Pad010")
body6.addObject(pad11)
pad11.Profile = sketch12
pad11.Length = 1
pad11.Reversed = True

doc.recompute()
